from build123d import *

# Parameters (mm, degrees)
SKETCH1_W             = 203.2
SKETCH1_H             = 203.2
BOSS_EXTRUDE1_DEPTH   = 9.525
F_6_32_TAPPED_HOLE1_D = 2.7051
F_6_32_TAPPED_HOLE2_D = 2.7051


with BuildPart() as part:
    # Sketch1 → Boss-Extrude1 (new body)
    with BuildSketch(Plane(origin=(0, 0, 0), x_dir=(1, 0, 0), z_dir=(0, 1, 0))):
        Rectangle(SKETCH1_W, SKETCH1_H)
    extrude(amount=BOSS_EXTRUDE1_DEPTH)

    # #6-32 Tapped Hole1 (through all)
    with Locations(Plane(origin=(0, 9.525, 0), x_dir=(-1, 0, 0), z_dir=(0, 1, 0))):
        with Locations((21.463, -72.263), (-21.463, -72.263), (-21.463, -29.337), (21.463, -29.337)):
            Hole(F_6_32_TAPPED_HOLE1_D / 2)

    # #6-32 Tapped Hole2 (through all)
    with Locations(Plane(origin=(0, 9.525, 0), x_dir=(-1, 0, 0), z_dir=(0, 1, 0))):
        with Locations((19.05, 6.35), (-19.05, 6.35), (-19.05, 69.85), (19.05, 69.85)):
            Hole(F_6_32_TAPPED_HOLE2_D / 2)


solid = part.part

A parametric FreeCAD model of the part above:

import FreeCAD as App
import Part
import Sketcher

V = App.Vector
Q = App.Units.Quantity

doc = App.newDocument("Part")
params = doc.addObject("Spreadsheet::Sheet", "Params")
for row, (alias, value) in enumerate([
    ("sketch1_width", "8 in"),
    ("pad1_length", "0.375 in"),
    ("hole_diameter", "0.1065 in"),
    ("hole2_diameter", "0.1065 in"),
], start=1):
    params.set(f"A{row}", alias)
    params.set(f"B{row}", "=" + value)
    params.setAlias(f"B{row}", alias)

body = doc.addObject("PartDesign::Body", "Body")

# Sketch on XZ plane
sketch1 = body.newObject("Sketcher::SketchObject", "Sketch")
sketch1.AttachmentSupport = (doc.getObject("XZ_Plane"), [""])
sketch1.MapMode = "FlatFace"
sketch1.addGeometry(Part.LineSegment(V(-101.6, -101.6, 0), V(-101.6, 101.6, 0)), False)
sketch1.addGeometry(Part.LineSegment(V(-101.6, 101.6, 0), V(101.6, 101.6, 0)), False)
sketch1.addGeometry(Part.LineSegment(V(101.6, 101.6, 0), V(101.6, -101.6, 0)), False)
sketch1.addGeometry(Part.LineSegment(V(101.6, -101.6, 0), V(-101.6, -101.6, 0)), False)
sketch1.addConstraint(Sketcher.Constraint("Coincident", 0, 2, 1, 1))
sketch1.addConstraint(Sketcher.Constraint("Coincident", 1, 2, 2, 1))
sketch1.addConstraint(Sketcher.Constraint("Coincident", 2, 2, 3, 1))
sketch1.addConstraint(Sketcher.Constraint("Coincident", 3, 2, 0, 1))
sketch1.addConstraint(Sketcher.Constraint("Vertical", 0))
sketch1.addConstraint(Sketcher.Constraint("Horizontal", 1))
sketch1.addConstraint(Sketcher.Constraint("Vertical", 2))
sketch1.addConstraint(Sketcher.Constraint("Horizontal", 3))
sketch1.addConstraint(Sketcher.Constraint("Symmetric", 0, 2, 2, 2, -1, 1))
sketch1.addConstraint(Sketcher.Constraint("Equal", 3, 0))
sketch1.addConstraint(Sketcher.Constraint("DistanceX", 1, 1, 1, 2, Q("8 in")))
sketch1.setExpression("Constraints[10]", "Params.sketch1_width")
pad1 = body.newObject("PartDesign::Pad", "Pad")
pad1.Profile = sketch1
pad1.setExpression("Length", "Params.pad1_length")
pad1.Reversed = True

# Sketch on XZ plane
sketch2 = body.newObject("Sketcher::SketchObject", "Sketch001")
sketch2.AttachmentSupport = (doc.getObject("XZ_Plane"), [""])
sketch2.MapMode = "FlatFace"
sketch2.AttachmentOffset = App.Placement(V(0, 0, -0.375 * 25.4), App.Rotation())
sketch2.addGeometry(Part.Circle(V(-21.463, -72.263, 0), V(0, 0, 1), 1.35255), False)
sketch2.addGeometry(Part.Circle(V(21.463, -72.263, 0), V(0, 0, 1), 1.35255), False)
sketch2.addGeometry(Part.Circle(V(21.463, -29.337, 0), V(0, 0, 1), 1.35255), False)
sketch2.addGeometry(Part.Circle(V(-21.463, -29.337, 0), V(0, 0, 1), 1.35255), False)
sketch2.addConstraint(Sketcher.Constraint("Equal", 0, 1))
sketch2.addConstraint(Sketcher.Constraint("Equal", 1, 2))
sketch2.addConstraint(Sketcher.Constraint("Equal", 2, 3))
sketch2.addConstraint(Sketcher.Constraint("Symmetric", 0, 3, 1, 3, -2))
sketch2.addConstraint(Sketcher.Constraint("Symmetric", 2, 3, 3, 3, -2))
sketch2.addConstraint(Sketcher.Constraint("Vertical", 1, 3, 2, 3))
sketch2.addConstraint(Sketcher.Constraint("Diameter", 0, Q("0.1065 in")))
sketch2.addConstraint(Sketcher.Constraint("DistanceX", 0, 3, 1, 3, Q("1.69 in")))
sketch2.addConstraint(Sketcher.Constraint("DistanceY", 1, 3, 2, 3, Q("1.69 in")))
sketch2.addConstraint(Sketcher.Constraint("DistanceY", 0, 3, -1, 1, Q("2.845 in")))
doc.recompute()
hole = body.newObject("PartDesign::Hole", "Hole")
hole.Profile = sketch2
hole.ThreadType = "None"
hole.setExpression("Diameter", "Params.hole_diameter")
hole.DepthType = "ThroughAll"
hole.Reversed = True

# Sketch on XZ plane
sketch3 = body.newObject("Sketcher::SketchObject", "Sketch002")
sketch3.AttachmentSupport = (doc.getObject("XZ_Plane"), [""])
sketch3.MapMode = "FlatFace"
sketch3.AttachmentOffset = App.Placement(V(0, 0, -0.375 * 25.4), App.Rotation())
sketch3.addGeometry(Part.Circle(V(-19.05, 6.35, 0), V(0, 0, 1), 1.35255), False)
sketch3.addGeometry(Part.Circle(V(19.05, 6.35, 0), V(0, 0, 1), 1.35255), False)
sketch3.addGeometry(Part.Circle(V(19.05, 69.85, 0), V(0, 0, 1), 1.35255), False)
sketch3.addGeometry(Part.Circle(V(-19.05, 69.85, 0), V(0, 0, 1), 1.35255), False)
sketch3.addConstraint(Sketcher.Constraint("Equal", 0, 1))
sketch3.addConstraint(Sketcher.Constraint("Equal", 1, 2))
sketch3.addConstraint(Sketcher.Constraint("Equal", 2, 3))
sketch3.addConstraint(Sketcher.Constraint("Symmetric", 0, 3, 1, 3, -2))
sketch3.addConstraint(Sketcher.Constraint("Symmetric", 2, 3, 3, 3, -2))
sketch3.addConstraint(Sketcher.Constraint("Vertical", 1, 3, 2, 3))
sketch3.addConstraint(Sketcher.Constraint("Diameter", 0, Q("0.1065 in")))
sketch3.addConstraint(Sketcher.Constraint("DistanceX", 0, 3, 1, 3, Q("1.5 in")))
sketch3.addConstraint(Sketcher.Constraint("DistanceY", 1, 3, 2, 3, Q("2.5 in")))
sketch3.addConstraint(Sketcher.Constraint("DistanceY", -1, 1, 0, 3, Q("0.25 in")))
doc.recompute()
hole2 = body.newObject("PartDesign::Hole", "Hole001")
hole2.Profile = sketch3
hole2.ThreadType = "None"
hole2.setExpression("Diameter", "Params.hole2_diameter")
hole2.DepthType = "ThroughAll"
hole2.Reversed = True

doc.recompute()
